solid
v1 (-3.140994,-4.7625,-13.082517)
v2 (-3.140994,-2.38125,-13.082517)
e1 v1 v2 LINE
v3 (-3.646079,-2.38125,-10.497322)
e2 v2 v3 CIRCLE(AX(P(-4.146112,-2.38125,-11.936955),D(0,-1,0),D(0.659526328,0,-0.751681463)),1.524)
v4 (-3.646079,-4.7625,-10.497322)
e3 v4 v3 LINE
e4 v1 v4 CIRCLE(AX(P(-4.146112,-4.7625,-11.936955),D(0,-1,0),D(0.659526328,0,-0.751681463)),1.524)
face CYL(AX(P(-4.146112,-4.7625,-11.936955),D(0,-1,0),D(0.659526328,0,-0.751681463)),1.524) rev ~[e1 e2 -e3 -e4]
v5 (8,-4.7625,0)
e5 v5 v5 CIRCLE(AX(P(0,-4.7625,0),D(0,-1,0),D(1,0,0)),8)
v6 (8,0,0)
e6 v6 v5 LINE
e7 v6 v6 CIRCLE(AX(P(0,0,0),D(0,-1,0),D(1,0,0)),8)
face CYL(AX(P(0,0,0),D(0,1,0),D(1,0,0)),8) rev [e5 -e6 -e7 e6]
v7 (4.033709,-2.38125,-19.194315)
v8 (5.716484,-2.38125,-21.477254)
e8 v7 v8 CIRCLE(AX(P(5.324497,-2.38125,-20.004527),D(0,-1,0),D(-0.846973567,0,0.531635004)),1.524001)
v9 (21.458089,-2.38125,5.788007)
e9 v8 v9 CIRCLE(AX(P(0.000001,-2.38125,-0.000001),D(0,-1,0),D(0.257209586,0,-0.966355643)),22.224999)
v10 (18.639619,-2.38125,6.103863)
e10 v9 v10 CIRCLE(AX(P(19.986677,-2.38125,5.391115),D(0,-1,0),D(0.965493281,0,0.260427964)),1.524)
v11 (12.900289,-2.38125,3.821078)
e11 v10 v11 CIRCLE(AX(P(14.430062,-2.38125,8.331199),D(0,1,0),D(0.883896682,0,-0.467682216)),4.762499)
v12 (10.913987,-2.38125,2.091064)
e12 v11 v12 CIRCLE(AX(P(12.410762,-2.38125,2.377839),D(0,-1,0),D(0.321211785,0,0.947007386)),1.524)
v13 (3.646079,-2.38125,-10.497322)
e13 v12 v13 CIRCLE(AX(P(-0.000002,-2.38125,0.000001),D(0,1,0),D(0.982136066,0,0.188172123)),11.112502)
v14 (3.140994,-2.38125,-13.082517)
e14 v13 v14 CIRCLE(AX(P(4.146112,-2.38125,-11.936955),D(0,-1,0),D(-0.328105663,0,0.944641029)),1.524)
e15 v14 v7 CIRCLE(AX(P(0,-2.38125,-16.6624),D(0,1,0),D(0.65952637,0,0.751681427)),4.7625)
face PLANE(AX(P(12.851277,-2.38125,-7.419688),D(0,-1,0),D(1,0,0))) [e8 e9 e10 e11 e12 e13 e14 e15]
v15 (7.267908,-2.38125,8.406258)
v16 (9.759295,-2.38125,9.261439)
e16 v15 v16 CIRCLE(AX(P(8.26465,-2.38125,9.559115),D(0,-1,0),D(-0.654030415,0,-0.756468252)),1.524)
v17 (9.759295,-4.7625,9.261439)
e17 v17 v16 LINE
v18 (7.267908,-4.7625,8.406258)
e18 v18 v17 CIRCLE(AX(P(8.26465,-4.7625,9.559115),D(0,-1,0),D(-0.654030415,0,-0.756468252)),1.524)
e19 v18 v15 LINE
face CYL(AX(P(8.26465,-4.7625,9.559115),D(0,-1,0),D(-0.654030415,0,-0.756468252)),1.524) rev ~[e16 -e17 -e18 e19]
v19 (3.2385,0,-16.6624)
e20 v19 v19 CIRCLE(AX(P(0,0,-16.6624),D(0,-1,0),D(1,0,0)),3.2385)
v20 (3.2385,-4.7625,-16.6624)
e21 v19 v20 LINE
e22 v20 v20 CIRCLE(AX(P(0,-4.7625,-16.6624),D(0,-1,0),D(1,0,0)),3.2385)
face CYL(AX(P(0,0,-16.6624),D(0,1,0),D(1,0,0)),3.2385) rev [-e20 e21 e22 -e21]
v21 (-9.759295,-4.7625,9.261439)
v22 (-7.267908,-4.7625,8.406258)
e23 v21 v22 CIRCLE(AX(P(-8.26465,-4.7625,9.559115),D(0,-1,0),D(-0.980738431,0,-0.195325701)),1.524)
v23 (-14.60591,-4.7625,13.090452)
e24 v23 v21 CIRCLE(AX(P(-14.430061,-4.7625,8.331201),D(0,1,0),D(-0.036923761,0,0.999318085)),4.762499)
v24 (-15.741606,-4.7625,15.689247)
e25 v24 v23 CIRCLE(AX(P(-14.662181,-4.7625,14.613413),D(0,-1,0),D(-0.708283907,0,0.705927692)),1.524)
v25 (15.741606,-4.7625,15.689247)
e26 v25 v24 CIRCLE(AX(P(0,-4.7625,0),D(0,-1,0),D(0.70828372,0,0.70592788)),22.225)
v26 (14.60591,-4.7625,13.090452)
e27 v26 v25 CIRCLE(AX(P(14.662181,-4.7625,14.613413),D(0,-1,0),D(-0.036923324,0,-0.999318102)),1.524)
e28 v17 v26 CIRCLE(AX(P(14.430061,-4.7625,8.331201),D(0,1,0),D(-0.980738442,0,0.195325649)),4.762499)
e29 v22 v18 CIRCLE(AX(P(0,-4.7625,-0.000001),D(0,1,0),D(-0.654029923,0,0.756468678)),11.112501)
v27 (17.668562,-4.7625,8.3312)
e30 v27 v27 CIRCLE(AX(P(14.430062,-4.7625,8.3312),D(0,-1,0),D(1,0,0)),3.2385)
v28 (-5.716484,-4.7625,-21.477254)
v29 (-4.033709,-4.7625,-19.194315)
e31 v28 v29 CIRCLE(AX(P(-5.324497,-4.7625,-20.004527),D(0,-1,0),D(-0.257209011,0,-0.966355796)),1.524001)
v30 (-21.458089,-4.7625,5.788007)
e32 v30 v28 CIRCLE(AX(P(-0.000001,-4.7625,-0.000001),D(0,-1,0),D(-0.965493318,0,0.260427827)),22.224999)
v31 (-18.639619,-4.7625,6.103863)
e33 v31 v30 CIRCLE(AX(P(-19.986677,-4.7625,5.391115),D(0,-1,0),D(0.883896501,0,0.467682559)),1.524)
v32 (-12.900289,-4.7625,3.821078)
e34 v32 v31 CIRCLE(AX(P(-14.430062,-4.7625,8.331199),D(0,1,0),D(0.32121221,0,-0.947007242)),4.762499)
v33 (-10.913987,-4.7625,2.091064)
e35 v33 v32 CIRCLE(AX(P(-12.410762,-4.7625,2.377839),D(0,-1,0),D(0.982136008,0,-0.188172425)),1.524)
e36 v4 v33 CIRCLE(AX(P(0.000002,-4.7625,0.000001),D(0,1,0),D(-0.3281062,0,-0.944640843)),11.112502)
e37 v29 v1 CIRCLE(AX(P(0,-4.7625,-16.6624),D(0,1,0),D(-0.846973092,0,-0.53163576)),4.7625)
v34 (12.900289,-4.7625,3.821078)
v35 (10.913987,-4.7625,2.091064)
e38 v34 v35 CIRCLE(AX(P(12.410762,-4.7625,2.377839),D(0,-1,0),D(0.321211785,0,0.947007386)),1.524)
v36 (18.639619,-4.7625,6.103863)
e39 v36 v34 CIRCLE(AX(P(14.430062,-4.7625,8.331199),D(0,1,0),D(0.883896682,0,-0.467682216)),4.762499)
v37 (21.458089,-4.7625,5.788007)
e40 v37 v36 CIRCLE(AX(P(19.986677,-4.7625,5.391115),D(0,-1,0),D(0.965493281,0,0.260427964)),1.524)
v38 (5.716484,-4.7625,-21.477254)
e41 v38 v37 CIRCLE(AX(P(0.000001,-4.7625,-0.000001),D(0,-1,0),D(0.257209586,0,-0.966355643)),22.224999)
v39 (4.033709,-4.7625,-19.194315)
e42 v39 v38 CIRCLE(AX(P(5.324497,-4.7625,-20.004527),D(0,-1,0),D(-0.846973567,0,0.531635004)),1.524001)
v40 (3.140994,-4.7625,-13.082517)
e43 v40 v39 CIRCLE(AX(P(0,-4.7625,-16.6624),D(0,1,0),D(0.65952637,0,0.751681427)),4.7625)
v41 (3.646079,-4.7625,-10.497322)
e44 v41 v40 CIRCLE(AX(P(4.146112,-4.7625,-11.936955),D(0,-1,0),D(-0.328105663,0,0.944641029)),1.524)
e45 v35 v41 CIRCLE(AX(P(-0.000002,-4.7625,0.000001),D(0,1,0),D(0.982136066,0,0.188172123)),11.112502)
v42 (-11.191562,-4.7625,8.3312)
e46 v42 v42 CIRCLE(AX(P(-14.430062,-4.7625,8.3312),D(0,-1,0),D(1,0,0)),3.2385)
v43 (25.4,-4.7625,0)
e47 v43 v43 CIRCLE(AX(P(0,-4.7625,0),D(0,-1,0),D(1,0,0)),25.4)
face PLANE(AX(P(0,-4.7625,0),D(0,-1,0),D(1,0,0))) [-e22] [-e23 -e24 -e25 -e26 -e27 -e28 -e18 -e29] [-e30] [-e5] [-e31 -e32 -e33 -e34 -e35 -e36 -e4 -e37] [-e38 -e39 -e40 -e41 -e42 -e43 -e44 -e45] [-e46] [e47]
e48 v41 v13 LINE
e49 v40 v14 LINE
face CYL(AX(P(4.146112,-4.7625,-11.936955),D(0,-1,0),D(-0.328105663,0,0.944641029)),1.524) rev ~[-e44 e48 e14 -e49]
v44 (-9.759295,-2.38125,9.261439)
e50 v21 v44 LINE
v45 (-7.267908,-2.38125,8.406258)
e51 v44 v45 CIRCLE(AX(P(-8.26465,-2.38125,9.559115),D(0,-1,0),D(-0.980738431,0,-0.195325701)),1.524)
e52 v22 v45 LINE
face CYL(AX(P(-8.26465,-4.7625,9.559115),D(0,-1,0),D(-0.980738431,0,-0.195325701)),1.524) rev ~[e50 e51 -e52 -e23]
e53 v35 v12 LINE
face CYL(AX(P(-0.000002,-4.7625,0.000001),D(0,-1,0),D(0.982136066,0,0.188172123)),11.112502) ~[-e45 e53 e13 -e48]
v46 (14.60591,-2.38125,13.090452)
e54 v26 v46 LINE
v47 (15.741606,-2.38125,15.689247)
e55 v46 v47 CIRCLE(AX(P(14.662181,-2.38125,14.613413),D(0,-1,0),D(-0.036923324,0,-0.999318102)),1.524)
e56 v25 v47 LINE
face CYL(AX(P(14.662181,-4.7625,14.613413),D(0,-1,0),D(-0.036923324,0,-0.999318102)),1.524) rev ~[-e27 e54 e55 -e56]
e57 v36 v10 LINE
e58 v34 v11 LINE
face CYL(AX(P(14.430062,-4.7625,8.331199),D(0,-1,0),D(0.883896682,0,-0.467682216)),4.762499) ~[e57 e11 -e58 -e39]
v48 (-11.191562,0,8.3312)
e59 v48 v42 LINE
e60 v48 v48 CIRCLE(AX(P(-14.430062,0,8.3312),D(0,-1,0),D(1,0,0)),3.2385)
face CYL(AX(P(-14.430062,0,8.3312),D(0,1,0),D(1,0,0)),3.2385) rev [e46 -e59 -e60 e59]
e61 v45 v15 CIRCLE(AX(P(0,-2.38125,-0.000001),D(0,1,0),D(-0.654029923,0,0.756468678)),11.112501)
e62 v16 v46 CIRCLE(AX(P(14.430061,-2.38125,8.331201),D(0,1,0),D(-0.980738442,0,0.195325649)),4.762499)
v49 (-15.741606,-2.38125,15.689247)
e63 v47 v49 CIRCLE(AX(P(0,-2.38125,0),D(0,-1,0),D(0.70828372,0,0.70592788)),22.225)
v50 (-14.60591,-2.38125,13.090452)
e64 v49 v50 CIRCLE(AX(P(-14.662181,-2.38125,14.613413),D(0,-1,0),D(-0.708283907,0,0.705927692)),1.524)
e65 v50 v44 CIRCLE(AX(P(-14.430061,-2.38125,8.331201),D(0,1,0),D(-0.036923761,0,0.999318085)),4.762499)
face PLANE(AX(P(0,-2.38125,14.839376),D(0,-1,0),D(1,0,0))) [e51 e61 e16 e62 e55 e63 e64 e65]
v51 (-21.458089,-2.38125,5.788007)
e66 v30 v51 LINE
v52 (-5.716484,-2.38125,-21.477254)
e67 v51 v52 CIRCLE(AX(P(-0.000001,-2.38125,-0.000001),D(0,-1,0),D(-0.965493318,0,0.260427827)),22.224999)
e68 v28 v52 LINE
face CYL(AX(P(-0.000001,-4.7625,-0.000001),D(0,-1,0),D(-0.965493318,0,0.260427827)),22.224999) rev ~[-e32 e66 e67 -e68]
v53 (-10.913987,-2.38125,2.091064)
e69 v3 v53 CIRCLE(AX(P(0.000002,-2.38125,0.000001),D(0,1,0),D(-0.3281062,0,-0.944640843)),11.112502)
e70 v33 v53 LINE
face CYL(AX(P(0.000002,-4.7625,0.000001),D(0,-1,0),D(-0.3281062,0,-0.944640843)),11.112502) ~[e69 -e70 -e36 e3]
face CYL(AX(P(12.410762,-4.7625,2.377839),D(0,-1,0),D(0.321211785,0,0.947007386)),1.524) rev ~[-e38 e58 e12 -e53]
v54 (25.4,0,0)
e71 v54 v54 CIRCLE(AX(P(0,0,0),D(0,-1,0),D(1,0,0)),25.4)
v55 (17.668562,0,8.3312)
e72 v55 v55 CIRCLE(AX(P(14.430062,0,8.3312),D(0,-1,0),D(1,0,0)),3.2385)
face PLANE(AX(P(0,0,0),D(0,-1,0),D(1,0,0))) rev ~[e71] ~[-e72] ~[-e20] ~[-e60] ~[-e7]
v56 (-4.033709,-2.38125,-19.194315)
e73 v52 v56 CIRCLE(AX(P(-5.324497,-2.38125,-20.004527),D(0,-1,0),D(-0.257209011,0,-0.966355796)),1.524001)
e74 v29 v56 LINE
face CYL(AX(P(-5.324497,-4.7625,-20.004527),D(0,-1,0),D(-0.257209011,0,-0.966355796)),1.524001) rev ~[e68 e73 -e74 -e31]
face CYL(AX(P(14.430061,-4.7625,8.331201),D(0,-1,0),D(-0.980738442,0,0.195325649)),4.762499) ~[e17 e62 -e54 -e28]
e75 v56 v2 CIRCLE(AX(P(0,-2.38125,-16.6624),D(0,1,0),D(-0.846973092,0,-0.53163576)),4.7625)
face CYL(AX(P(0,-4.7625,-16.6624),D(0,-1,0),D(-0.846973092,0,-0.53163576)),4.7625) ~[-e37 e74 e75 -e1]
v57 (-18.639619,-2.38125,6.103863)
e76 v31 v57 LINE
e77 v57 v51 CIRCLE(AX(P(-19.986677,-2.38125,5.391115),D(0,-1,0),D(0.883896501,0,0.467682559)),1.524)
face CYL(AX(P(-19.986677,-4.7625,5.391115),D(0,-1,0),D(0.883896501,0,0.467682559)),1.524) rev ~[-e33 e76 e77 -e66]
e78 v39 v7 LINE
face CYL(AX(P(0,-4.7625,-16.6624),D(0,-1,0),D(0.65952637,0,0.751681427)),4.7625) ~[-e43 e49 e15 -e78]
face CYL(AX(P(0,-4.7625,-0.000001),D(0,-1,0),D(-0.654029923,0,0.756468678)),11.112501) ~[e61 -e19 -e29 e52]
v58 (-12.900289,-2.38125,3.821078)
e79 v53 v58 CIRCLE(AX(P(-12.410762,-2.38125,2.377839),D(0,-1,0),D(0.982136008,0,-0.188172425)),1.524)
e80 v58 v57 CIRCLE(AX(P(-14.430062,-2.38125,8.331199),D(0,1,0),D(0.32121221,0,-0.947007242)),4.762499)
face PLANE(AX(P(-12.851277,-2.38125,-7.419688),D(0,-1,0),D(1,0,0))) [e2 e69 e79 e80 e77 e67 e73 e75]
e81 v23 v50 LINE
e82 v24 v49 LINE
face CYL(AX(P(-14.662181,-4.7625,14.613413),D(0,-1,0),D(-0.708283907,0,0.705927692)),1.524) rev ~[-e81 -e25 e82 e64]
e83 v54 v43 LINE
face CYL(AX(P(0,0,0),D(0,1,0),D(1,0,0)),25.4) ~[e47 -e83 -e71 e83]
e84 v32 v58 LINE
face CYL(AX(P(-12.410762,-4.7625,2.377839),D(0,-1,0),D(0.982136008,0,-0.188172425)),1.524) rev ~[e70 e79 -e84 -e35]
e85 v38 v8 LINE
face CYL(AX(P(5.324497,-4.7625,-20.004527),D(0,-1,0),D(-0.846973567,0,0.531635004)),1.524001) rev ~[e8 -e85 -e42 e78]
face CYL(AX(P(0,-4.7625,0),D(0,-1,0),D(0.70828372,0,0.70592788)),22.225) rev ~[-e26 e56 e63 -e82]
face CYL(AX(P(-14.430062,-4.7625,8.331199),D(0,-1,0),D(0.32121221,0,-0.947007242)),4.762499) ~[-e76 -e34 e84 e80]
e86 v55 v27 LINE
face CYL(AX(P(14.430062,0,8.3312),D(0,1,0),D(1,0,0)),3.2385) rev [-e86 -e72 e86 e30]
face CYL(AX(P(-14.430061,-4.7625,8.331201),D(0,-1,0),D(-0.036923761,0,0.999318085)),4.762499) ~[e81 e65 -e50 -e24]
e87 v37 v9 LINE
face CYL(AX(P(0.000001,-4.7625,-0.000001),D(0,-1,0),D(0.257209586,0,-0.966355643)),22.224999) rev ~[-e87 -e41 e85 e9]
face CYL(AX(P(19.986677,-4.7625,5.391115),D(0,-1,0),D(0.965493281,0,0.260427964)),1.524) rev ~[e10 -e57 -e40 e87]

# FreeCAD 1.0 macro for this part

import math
import FreeCAD as App
import Part
import Sketcher
from FreeCAD import Vector
Q = App.Units.Quantity

doc = App.newDocument("Part")
body = doc.addObject("PartDesign::Body", "Body")

sketch1 = body.newObject("Sketcher::SketchObject", "Sketch")
sketch1.AttachmentSupport = (doc.getObject("XZ_Plane"), [""])
sketch1.MapMode = "FlatFace"
sketch1.addGeometry(Part.Circle(Vector(0, 0, 0), Vector(0, 0, 1), 25.4), False)
sketch1.addGeometry(Part.Circle(Vector(0, -16.7, 0), Vector(0, 0, 1), 3.2), False)
sketch1.addGeometry(Part.Circle(Vector(-14.4, 8.3, 0), Vector(0, 0, 1), 3.2), False)
sketch1.addGeometry(Part.Circle(Vector(0, 0, 0), Vector(0, 0, 1), 8), False)
sketch1.addGeometry(Part.Circle(Vector(14.4, 8.3, 0), Vector(0, 0, 1), 3.2), False)
sketch1.addConstraint(Sketcher.Constraint("Coincident", 0, 3, -1, 1))
sketch1.addConstraint(Sketcher.Constraint("Coincident", 3, 3, -1, 1))
sketch1.addConstraint(Sketcher.Constraint("Equal", 1, 2))
sketch1.addConstraint(Sketcher.Constraint("Equal", 2, 4))
sketch1.addConstraint(Sketcher.Constraint("Symmetric", 2, 3, 4, 3, -2))
sketch1.addConstraint(Sketcher.Constraint("PointOnObject", 1, 3, -2))
sketch1.addConstraint(Sketcher.Constraint("Diameter", 0, Q("2 in")))
sketch1.addConstraint(Sketcher.Constraint("Diameter", 1, Q("0.255 in")))
sketch1.addConstraint(Sketcher.Constraint("Diameter", 3, 16.0))
sketch1.addConstraint(Sketcher.Constraint("DistanceY", 1, 3, -1, 1, Q("0.656 in")))
sketch1.addConstraint(Sketcher.Constraint("DistanceY", -1, 1, 2, 3, Q("0.328 in")))
sketch1.addConstraint(Sketcher.Constraint("DistanceX", 2, 3, -1, 1, 14.430062))
pad1 = body.newObject("PartDesign::Pad", "Pad")
pad1.Profile = sketch1
pad1.Length = Q("0.1875 in")

sketch2 = body.newObject("Sketcher::SketchObject", "Sketch001")
sketch2.AttachmentSupport = (doc.getObject("XZ_Plane"), [""])
sketch2.MapMode = "FlatFace"
sketch2.AttachmentOffset = App.Placement(Vector(0, 0, 0.1875 * 25.4), App.Rotation())
sketch2.addGeometry(Part.ArcOfCircle(Part.Circle(Vector(0, 0, 0), Vector(0, 0, 1), 11.1), math.radians(169), math.radians(251)), False)
sketch2.addGeometry(Part.ArcOfCircle(Part.Circle(Vector(-12.4, 2.4, 0), Vector(0, 0, 1), 1.5), math.radians(-11), math.radians(109)), False)
sketch2.addGeometry(Part.ArcOfCircle(Part.Circle(Vector(-14.4, 8.3, 0), Vector(0, 0, 1), 4.8), math.radians(-152), math.radians(-71)), False)
sketch2.addGeometry(Part.ArcOfCircle(Part.Circle(Vector(-20, 5.4, 0), Vector(0, 0, 1), 1.5), math.radians(28), math.radians(165)), False)
sketch2.addGeometry(Part.ArcOfCircle(Part.Circle(Vector(0, 0, 0), Vector(0, 0, 1), 22.2), math.radians(165), math.radians(255)), False)
sketch2.addGeometry(Part.ArcOfCircle(Part.Circle(Vector(-5.3, -20, 0), Vector(0, 0, 1), 1.5), math.radians(-105), math.radians(32)), False)
sketch2.addGeometry(Part.ArcOfCircle(Part.Circle(Vector(0, -16.7, 0), Vector(0, 0, 1), 4.8), math.radians(131), math.radians(212)), False)
sketch2.addGeometry(Part.ArcOfCircle(Part.Circle(Vector(-4.1, -11.9, 0), Vector(0, 0, 1), 1.5), math.radians(-49), math.radians(71)), False)
sketch2.addGeometry(Part.ArcOfCircle(Part.Circle(Vector(0, 0, 0), Vector(0, 0, 1), 11.1), math.radians(49), math.radians(131)), False)
sketch2.addGeometry(Part.ArcOfCircle(Part.Circle(Vector(8.3, 9.6, 0), Vector(0, 0, 1), 1.5), math.radians(-131), math.radians(-11)), False)
sketch2.addGeometry(Part.ArcOfCircle(Part.Circle(Vector(14.4, 8.3, 0), Vector(0, 0, 1), 4.8), math.radians(88), math.radians(169)), False)
sketch2.addGeometry(Part.ArcOfCircle(Part.Circle(Vector(14.7, 14.6, 0), Vector(0, 0, 1), 1.5), math.radians(-92), math.radians(45)), False)
sketch2.addGeometry(Part.ArcOfCircle(Part.Circle(Vector(0, 0, 0), Vector(0, 0, 1), 22.2), math.radians(45), math.radians(135)), False)
sketch2.addGeometry(Part.ArcOfCircle(Part.Circle(Vector(-14.7, 14.6, 0), Vector(0, 0, 1), 1.5), math.radians(135), math.radians(272)), False)
sketch2.addGeometry(Part.ArcOfCircle(Part.Circle(Vector(-14.4, 8.3, 0), Vector(0, 0, 1), 4.8), math.radians(11), math.radians(92)), False)
sketch2.addGeometry(Part.ArcOfCircle(Part.Circle(Vector(-8.3, 9.6, 0), Vector(0, 0, 1), 1.5), math.radians(-169), math.radians(-49)), False)
sketch2.addGeometry(Part.ArcOfCircle(Part.Circle(Vector(0, 0, 0), Vector(0, 0, 1), 11.1), math.radians(-71), math.radians(11)), False)
sketch2.addGeometry(Part.ArcOfCircle(Part.Circle(Vector(4.1, -11.9, 0), Vector(0, 0, 1), 1.5), math.radians(109), math.radians(229)), False)
sketch2.addGeometry(Part.ArcOfCircle(Part.Circle(Vector(0, -16.7, 0), Vector(0, 0, 1), 4.8), math.radians(-32), math.radians(49)), False)
sketch2.addGeometry(Part.ArcOfCircle(Part.Circle(Vector(5.3, -20, 0), Vector(0, 0, 1), 1.5), math.radians(148), math.radians(285)), False)
sketch2.addGeometry(Part.ArcOfCircle(Part.Circle(Vector(0, 0, 0), Vector(0, 0, 1), 22.2), math.radians(-75), math.radians(15)), False)
sketch2.addGeometry(Part.ArcOfCircle(Part.Circle(Vector(20, 5.4, 0), Vector(0, 0, 1), 1.5), math.radians(15), math.radians(152)), False)
sketch2.addGeometry(Part.ArcOfCircle(Part.Circle(Vector(14.4, 8.3, 0), Vector(0, 0, 1), 4.8), math.radians(-109), math.radians(-28)), False)
sketch2.addGeometry(Part.ArcOfCircle(Part.Circle(Vector(12.4, 2.4, 0), Vector(0, 0, 1), 1.5), math.radians(71), math.radians(191)), False)
sketch2.addConstraint(Sketcher.Constraint("Tangent", 0, 1, 1, 1))
sketch2.addConstraint(Sketcher.Constraint("Tangent", 1, 2, 2, 2))
sketch2.addConstraint(Sketcher.Constraint("Tangent", 2, 1, 3, 1))
sketch2.addConstraint(Sketcher.Constraint("Tangent", 3, 2, 4, 1))
sketch2.addConstraint(Sketcher.Constraint("Tangent", 4, 2, 5, 1))
sketch2.addConstraint(Sketcher.Constraint("Tangent", 5, 2, 6, 2))
sketch2.addConstraint(Sketcher.Constraint("Tangent", 6, 1, 7, 1))
sketch2.addConstraint(Sketcher.Constraint("Tangent", 7, 2, 0, 2))
sketch2.addConstraint(Sketcher.Constraint("Tangent", 8, 1, 9, 1))
sketch2.addConstraint(Sketcher.Constraint("Tangent", 9, 2, 10, 2))
sketch2.addConstraint(Sketcher.Constraint("Tangent", 10, 1, 11, 1))
sketch2.addConstraint(Sketcher.Constraint("Tangent", 11, 2, 12, 1))
sketch2.addConstraint(Sketcher.Constraint("Tangent", 12, 2, 13, 1))
sketch2.addConstraint(Sketcher.Constraint("Tangent", 13, 2, 14, 2))
sketch2.addConstraint(Sketcher.Constraint("Tangent", 14, 1, 15, 1))
sketch2.addConstraint(Sketcher.Constraint("Tangent", 15, 2, 8, 2))
sketch2.addConstraint(Sketcher.Constraint("Tangent", 16, 1, 17, 1))
sketch2.addConstraint(Sketcher.Constraint("Tangent", 17, 2, 18, 2))
sketch2.addConstraint(Sketcher.Constraint("Tangent", 18, 1, 19, 1))
sketch2.addConstraint(Sketcher.Constraint("Tangent", 19, 2, 20, 1))
sketch2.addConstraint(Sketcher.Constraint("Tangent", 20, 2, 21, 1))
sketch2.addConstraint(Sketcher.Constraint("Tangent", 21, 2, 22, 2))
sketch2.addConstraint(Sketcher.Constraint("Tangent", 22, 1, 23, 1))
sketch2.addConstraint(Sketcher.Constraint("Tangent", 23, 2, 16, 2))
sketch2.addConstraint(Sketcher.Constraint("Coincident", 0, 3, -1, 1))
sketch2.addConstraint(Sketcher.Constraint("Coincident", 4, 3, -1, 1))
sketch2.addConstraint(Sketcher.Constraint("Coincident", 8, 3, -1, 1))
sketch2.addConstraint(Sketcher.Constraint("Coincident", 12, 3, -1, 1))
sketch2.addConstraint(Sketcher.Constraint("Coincident", 16, 3, -1, 1))
sketch2.addConstraint(Sketcher.Constraint("Coincident", 20, 3, -1, 1))
sketch2.addConstraint(Sketcher.Constraint("Coincident", 14, 3, 2, 3))
sketch2.addConstraint(Sketcher.Constraint("Coincident", 18, 3, 6, 3))
sketch2.addConstraint(Sketcher.Constraint("Coincident", 22, 3, 10, 3))
sketch2.addConstraint(Sketcher.Constraint("Equal", 1, 3))
sketch2.addConstraint(Sketcher.Constraint("Equal", 3, 5))
sketch2.addConstraint(Sketcher.Constraint("Equal", 2, 6))
sketch2.addConstraint(Sketcher.Constraint("Equal", 5, 7))
sketch2.addConstraint(Sketcher.Constraint("Equal", 0, 8))
sketch2.addConstraint(Sketcher.Constraint("Equal", 7, 9))
sketch2.addConstraint(Sketcher.Constraint("Equal", 6, 10))
sketch2.addConstraint(Sketcher.Constraint("Equal", 9, 11))
sketch2.addConstraint(Sketcher.Constraint("Equal", 4, 12))
sketch2.addConstraint(Sketcher.Constraint("Equal", 11, 13))
sketch2.addConstraint(Sketcher.Constraint("Equal", 10, 14))
sketch2.addConstraint(Sketcher.Constraint("Equal", 13, 15))
sketch2.addConstraint(Sketcher.Constraint("Equal", 8, 16))
sketch2.addConstraint(Sketcher.Constraint("Equal", 15, 17))
sketch2.addConstraint(Sketcher.Constraint("Equal", 14, 18))
sketch2.addConstraint(Sketcher.Constraint("Equal", 17, 19))
sketch2.addConstraint(Sketcher.Constraint("Equal", 12, 20))
sketch2.addConstraint(Sketcher.Constraint("Equal", 19, 21))
sketch2.addConstraint(Sketcher.Constraint("Equal", 18, 22))
sketch2.addConstraint(Sketcher.Constraint("Equal", 21, 23))
sketch2.addConstraint(Sketcher.Constraint("Symmetric", 2, 3, 10, 3, -2))
sketch2.addConstraint(Sketcher.Constraint("PointOnObject", 6, 3, -2))
sketch2.addConstraint(Sketcher.Constraint("Radius", 1, Q("0.06 in")))
sketch2.addConstraint(Sketcher.Constraint("Radius", 0, Q("0.4375001 in")))
sketch2.addConstraint(Sketcher.Constraint("Radius", 2, Q("0.1875 in")))
sketch2.addConstraint(Sketcher.Constraint("Radius", 4, Q("0.8749999 in")))
sketch2.addConstraint(Sketcher.Constraint("DistanceY", -1, 1, 2, 3, Q("0.328 in")))
sketch2.addConstraint(Sketcher.Constraint("DistanceY", 6, 3, -1, 1, Q("0.656 in")))
sketch2.addConstraint(Sketcher.Constraint("DistanceX", 2, 3, 1, 3, Q("0.0795 in")))
pocket1 = body.newObject("PartDesign::Pocket", "Pocket")
pocket1.Profile = sketch2
pocket1.Length = Q("0.09375 in")

doc.recompute()
